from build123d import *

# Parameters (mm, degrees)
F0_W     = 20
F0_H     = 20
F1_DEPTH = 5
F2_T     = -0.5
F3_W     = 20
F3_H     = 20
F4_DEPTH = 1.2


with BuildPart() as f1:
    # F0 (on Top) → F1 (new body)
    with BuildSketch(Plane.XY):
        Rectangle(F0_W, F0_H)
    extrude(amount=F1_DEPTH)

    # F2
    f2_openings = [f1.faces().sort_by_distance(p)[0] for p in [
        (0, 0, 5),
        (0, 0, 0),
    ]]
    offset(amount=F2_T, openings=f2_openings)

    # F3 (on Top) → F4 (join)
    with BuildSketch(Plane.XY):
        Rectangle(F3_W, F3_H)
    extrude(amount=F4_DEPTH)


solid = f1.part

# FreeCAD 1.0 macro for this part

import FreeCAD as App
import Part
import Sketcher
Q = App.Units.Quantity


def faces_at(feature, points):
    """Names of the faces that lie closest to the given points."""
    faces = feature.Shape.Faces
    near = lambda p: min(range(len(faces)), key=lambda i: faces[i].distToShape(Part.Vertex(*p))[0])
    return sorted({f"Face{near(p) + 1}" for p in points})

doc = App.newDocument("Part")
body = doc.addObject("PartDesign::Body", "Body")

# Sketch on XY plane
sketch1 = doc.addObject("Sketcher::SketchObject", "Sketch")
body.addObject(sketch1)
sketch1.AttachmentSupport = (doc.XY_Plane, [""])
sketch1.MapMode = "FlatFace"
sketch1.addGeometry([
    Part.LineSegment(App.Vector(-10, 10, 0), App.Vector(-10, -10, 0)),
    Part.LineSegment(App.Vector(-10, -10, 0), App.Vector(10, -10, 0)),
    Part.LineSegment(App.Vector(10, -10, 0), App.Vector(10, 10, 0)),
    Part.LineSegment(App.Vector(10, 10, 0), App.Vector(-10, 10, 0)),
], False)
sketch1.addConstraint([
    Sketcher.Constraint("Coincident", 0, 2, 1, 1),
    Sketcher.Constraint("Coincident", 1, 2, 2, 1),
    Sketcher.Constraint("Coincident", 2, 2, 3, 1),
    Sketcher.Constraint("Coincident", 3, 2, 0, 1),
    Sketcher.Constraint("Vertical", 0),
    Sketcher.Constraint("Horizontal", 1),
    Sketcher.Constraint("Vertical", 2),
    Sketcher.Constraint("Horizontal", 3),
    Sketcher.Constraint("Symmetric", 0, 2, 2, 2, -1, 1),
    Sketcher.Constraint("Equal", 3, 0),
    Sketcher.Constraint("DistanceX", 1, 1, 1, 2, Q("20 mm")),
])
pad1 = doc.addObject("PartDesign::Pad", "Pad")
body.addObject(pad1)
pad1.Profile = sketch1
pad1.Length = 5
doc.recompute()

thickness = doc.addObject("PartDesign::Thickness", "Thickness")
body.addObject(thickness)
thickness.Base = (pad1, faces_at(pad1, [(0, 0, 5), (0, 0, 0)]))
thickness.Value = 0.5
thickness.Reversed = True
thickness.Join = "Arc"

# Sketch on XY plane
sketch2 = doc.addObject("Sketcher::SketchObject", "Sketch001")
body.addObject(sketch2)
sketch2.AttachmentSupport = (doc.XY_Plane, [""])
sketch2.MapMode = "FlatFace"
sketch2.addGeometry([
    Part.LineSegment(App.Vector(-10, 10, 0), App.Vector(-10, -10, 0)),
    Part.LineSegment(App.Vector(-10, -10, 0), App.Vector(10, -10, 0)),
    Part.LineSegment(App.Vector(10, -10, 0), App.Vector(10, 10, 0)),
    Part.LineSegment(App.Vector(10, 10, 0), App.Vector(-10, 10, 0)),
], False)
sketch2.addConstraint([
    Sketcher.Constraint("Coincident", 0, 2, 1, 1),
    Sketcher.Constraint("Coincident", 1, 2, 2, 1),
    Sketcher.Constraint("Coincident", 2, 2, 3, 1),
    Sketcher.Constraint("Coincident", 3, 2, 0, 1),
    Sketcher.Constraint("Vertical", 0),
    Sketcher.Constraint("Horizontal", 1),
    Sketcher.Constraint("Vertical", 2),
    Sketcher.Constraint("Horizontal", 3),
    Sketcher.Constraint("Symmetric", 0, 2, 2, 2, -1, 1),
    Sketcher.Constraint("Equal", 3, 0),
    Sketcher.Constraint("DistanceX", 1, 1, 1, 2, Q("20 mm")),
])
pad2 = doc.addObject("PartDesign::Pad", "Pad001")
body.addObject(pad2)
pad2.Profile = sketch2
pad2.Length = 1.2

doc.recompute()
